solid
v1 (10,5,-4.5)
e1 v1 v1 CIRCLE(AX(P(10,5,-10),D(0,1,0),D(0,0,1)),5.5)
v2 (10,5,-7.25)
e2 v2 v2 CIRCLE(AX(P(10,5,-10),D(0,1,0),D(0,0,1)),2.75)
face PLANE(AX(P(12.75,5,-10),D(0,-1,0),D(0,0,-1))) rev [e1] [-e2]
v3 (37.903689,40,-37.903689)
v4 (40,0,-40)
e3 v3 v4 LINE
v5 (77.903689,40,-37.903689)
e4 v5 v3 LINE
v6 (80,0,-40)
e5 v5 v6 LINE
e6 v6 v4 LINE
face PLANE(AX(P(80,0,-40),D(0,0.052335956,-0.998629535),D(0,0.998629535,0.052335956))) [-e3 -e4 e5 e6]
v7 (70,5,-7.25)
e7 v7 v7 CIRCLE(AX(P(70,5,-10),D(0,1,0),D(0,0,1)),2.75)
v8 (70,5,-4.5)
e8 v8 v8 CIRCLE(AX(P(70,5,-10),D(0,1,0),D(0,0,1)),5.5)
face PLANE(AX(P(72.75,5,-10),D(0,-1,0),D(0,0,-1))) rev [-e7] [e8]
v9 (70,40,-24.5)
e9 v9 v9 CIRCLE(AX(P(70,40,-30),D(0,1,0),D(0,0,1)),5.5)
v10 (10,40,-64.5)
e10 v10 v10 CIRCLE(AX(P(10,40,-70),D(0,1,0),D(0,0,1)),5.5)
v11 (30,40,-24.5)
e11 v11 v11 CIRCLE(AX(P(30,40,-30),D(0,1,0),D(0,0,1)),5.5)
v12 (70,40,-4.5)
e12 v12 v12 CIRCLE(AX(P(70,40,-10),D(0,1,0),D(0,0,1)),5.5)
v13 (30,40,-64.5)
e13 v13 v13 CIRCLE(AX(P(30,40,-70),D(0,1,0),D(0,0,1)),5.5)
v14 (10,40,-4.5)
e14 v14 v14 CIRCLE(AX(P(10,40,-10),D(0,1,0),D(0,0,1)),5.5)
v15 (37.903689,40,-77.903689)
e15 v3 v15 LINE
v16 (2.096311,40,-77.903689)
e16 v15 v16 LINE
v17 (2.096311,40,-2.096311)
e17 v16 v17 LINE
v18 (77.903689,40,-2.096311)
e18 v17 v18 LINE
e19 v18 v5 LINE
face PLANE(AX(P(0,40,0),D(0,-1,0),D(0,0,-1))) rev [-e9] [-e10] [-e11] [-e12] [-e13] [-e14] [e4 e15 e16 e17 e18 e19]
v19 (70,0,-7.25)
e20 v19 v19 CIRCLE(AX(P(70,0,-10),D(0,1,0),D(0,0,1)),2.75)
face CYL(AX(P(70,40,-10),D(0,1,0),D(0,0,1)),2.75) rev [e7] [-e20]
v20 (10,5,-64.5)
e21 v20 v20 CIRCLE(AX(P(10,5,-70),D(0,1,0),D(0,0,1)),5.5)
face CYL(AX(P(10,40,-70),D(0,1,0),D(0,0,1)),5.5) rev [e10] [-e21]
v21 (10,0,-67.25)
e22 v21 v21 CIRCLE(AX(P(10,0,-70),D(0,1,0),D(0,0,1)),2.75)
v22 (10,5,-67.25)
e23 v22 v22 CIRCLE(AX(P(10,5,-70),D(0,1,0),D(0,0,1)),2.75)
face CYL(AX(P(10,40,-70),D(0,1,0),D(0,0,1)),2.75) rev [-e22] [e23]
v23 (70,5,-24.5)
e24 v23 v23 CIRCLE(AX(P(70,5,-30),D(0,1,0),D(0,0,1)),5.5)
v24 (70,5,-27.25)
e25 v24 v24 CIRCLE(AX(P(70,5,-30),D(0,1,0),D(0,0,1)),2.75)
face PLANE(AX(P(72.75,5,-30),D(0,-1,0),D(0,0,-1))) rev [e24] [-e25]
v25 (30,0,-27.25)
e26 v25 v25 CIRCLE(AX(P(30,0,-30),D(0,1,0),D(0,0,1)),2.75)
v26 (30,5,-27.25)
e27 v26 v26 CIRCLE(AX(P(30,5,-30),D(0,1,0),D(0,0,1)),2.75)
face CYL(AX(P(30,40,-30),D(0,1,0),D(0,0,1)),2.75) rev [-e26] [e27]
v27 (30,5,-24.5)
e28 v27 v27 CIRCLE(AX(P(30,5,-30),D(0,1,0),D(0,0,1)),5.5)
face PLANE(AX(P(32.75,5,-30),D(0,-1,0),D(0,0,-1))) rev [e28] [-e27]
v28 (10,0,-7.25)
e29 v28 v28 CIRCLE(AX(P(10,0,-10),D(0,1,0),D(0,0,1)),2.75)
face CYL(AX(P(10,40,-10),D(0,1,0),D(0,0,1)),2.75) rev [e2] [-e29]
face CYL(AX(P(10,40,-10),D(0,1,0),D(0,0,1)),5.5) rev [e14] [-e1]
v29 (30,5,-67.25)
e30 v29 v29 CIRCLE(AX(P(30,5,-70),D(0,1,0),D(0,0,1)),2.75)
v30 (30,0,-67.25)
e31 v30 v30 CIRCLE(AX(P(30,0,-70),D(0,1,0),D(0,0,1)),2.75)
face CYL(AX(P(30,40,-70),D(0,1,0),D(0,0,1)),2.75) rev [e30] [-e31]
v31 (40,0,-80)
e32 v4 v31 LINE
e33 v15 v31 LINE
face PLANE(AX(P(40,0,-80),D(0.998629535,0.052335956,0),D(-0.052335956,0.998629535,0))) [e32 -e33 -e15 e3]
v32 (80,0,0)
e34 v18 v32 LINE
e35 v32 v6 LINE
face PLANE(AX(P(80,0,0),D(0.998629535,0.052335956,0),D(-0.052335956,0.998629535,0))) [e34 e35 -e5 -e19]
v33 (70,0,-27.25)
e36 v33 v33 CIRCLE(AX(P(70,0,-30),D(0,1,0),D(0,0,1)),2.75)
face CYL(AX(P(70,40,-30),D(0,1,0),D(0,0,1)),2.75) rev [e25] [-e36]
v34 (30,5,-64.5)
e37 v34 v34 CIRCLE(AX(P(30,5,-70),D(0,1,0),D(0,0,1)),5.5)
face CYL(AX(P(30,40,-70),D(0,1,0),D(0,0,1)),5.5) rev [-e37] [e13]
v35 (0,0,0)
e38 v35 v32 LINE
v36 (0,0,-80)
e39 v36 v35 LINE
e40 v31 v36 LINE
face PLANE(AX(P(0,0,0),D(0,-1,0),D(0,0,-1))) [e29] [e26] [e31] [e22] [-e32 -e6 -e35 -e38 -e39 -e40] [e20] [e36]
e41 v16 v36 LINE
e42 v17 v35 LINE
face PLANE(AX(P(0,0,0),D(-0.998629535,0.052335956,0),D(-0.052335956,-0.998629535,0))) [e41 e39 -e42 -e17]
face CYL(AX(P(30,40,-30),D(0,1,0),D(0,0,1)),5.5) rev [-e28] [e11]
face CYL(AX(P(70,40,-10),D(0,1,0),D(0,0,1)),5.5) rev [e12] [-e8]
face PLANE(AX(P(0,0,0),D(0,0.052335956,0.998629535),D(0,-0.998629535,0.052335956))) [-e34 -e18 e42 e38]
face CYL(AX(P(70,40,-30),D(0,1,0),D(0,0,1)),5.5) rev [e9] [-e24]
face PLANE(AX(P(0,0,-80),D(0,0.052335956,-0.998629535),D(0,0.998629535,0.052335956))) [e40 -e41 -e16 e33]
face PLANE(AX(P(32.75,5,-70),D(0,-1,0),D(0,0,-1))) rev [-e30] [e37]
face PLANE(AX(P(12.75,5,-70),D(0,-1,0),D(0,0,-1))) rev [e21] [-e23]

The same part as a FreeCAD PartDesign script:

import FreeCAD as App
import Part
import Sketcher
from FreeCAD import Vector

doc = App.newDocument("Part")
params = doc.addObject("Spreadsheet::Sheet", "Params")
for row, (alias, value) in enumerate([
    ("sketch1_width", "80 mm"),
    ("pad1_length", "40 mm"),
    ("pad1_taper", "-3 deg"),
    ("sketch2_diameter", "5.5 mm"),
    ("hole_diameter", "5.5 mm"),
    ("hole_cbore_diameter", "11 mm"),
    ("hole_cbore_depth", "35 mm"),
], start=1):
    params.set(f"A{row}", alias)
    params.set(f"B{row}", "=" + value)
    params.setAlias(f"B{row}", alias)

body = doc.addObject("PartDesign::Body", "Body")

# Sketch on XZ plane
sketch1 = doc.addObject("Sketcher::SketchObject", "Sketch")
body.addObject(sketch1)
sketch1.AttachmentSupport = (doc.XZ_Plane, [""])
sketch1.MapMode = "FlatFace"
sketch1.addGeometry([
    Part.LineSegment(Vector(0, 0, 0), Vector(80, 0, 0)),  # 0
    Part.LineSegment(Vector(80, 0, 0), Vector(80, -40, 0)),  # 1
    Part.LineSegment(Vector(80, -40, 0), Vector(40, -40, 0)),  # 2
    Part.LineSegment(Vector(40, -40, 0), Vector(40, -80, 0)),  # 3
    Part.LineSegment(Vector(40, -80, 0), Vector(0, -80, 0)),  # 4
    Part.LineSegment(Vector(0, -80, 0), Vector(0, 0, 0)),  # 5
], False)
sketch1.addConstraint([
    Sketcher.Constraint("Coincident", 0, 2, 1, 1),
    Sketcher.Constraint("Coincident", 1, 2, 2, 1),
    Sketcher.Constraint("Coincident", 2, 2, 3, 1),
    Sketcher.Constraint("Coincident", 3, 2, 4, 1),
    Sketcher.Constraint("Coincident", 4, 2, 5, 1),
    Sketcher.Constraint("Coincident", 5, 2, 0, 1),
    Sketcher.Constraint("Horizontal", 0),
    Sketcher.Constraint("Vertical", 1),
    Sketcher.Constraint("Horizontal", 2),
    Sketcher.Constraint("Vertical", 3),
    Sketcher.Constraint("Horizontal", 4),
    Sketcher.Constraint("Vertical", 5),
    Sketcher.Constraint("Coincident", 5, 2, -1, 1),
    Sketcher.Constraint("Equal", 2, 4),
    Sketcher.Constraint("Equal", 4, 1),
    Sketcher.Constraint("Equal", 1, 3),
    Sketcher.Constraint("DistanceX", 0, 1, 0, 2, 80.0),
])
sketch1.setExpression("Constraints[16]", "Params.sketch1_width")
pad1 = doc.addObject("PartDesign::Pad", "Pad")
body.addObject(pad1)
pad1.Profile = sketch1
pad1.setExpression("Length", "Params.pad1_length")
pad1.Reversed = True
pad1.setExpression("TaperAngle", "Params.pad1_taper")

# Sketch on XZ plane
sketch2 = doc.addObject("Sketcher::SketchObject", "Sketch001")
body.addObject(sketch2)
sketch2.AttachmentSupport = (doc.XZ_Plane, [""])
sketch2.MapMode = "FlatFace"
sketch2.AttachmentOffset = App.Placement(Vector(0, 0, -40), App.Rotation())
sketch2.addGeometry([
    Part.Circle(Vector(10, -70, 0), Vector(0, 0, 1), 2.75),  # 0
    Part.Circle(Vector(30, -70, 0), Vector(0, 0, 1), 2.75),  # 1
    Part.Circle(Vector(70, -30, 0), Vector(0, 0, 1), 2.75),  # 2
    Part.Circle(Vector(70, -10, 0), Vector(0, 0, 1), 2.75),  # 3
    Part.Circle(Vector(30, -30, 0), Vector(0, 0, 1), 2.75),  # 4
    Part.Circle(Vector(10, -10, 0), Vector(0, 0, 1), 2.75),  # 5
], False)
sketch2.addConstraint([
    Sketcher.Constraint("Equal", 0, 1),
    Sketcher.Constraint("Equal", 1, 2),
    Sketcher.Constraint("Equal", 2, 3),
    Sketcher.Constraint("Equal", 3, 4),
    Sketcher.Constraint("Equal", 4, 5),
    Sketcher.Constraint("Horizontal", 0, 3, 1, 3),
    Sketcher.Constraint("Horizontal", 2, 3, 4, 3),
    Sketcher.Constraint("Horizontal", 3, 3, 5, 3),
    Sketcher.Constraint("Vertical", 2, 3, 3, 3),
    Sketcher.Constraint("Vertical", 1, 3, 4, 3),
    Sketcher.Constraint("Vertical", 0, 3, 5, 3),
    Sketcher.Constraint("Diameter", 0, 5.5),
    Sketcher.Constraint("DistanceX", -1, 1, 0, 3, 10.0),
    Sketcher.Constraint("DistanceY", 0, 3, -1, 1, 70.0),
    Sketcher.Constraint("DistanceX", -1, 1, 1, 3, 30.0),
    Sketcher.Constraint("DistanceX", -1, 1, 2, 3, 70.0),
    Sketcher.Constraint("DistanceY", 2, 3, -1, 1, 30.0),
    Sketcher.Constraint("DistanceY", 3, 3, -1, 1, 10.0),
])
sketch2.setExpression("Constraints[11]", "Params.sketch2_diameter")
doc.recompute()
hole = doc.addObject("PartDesign::Hole", "Hole")
body.addObject(hole)
hole.Profile = sketch2
hole.ThreadType = "None"
hole.setExpression("Diameter", "Params.hole_diameter")
hole.DepthType = "ThroughAll"
hole.HoleCutType = "Counterbore"
hole.setExpression("HoleCutDiameter", "Params.hole_cbore_diameter")
hole.setExpression("HoleCutDepth", "Params.hole_cbore_depth")
hole.Reversed = True

doc.recompute()
